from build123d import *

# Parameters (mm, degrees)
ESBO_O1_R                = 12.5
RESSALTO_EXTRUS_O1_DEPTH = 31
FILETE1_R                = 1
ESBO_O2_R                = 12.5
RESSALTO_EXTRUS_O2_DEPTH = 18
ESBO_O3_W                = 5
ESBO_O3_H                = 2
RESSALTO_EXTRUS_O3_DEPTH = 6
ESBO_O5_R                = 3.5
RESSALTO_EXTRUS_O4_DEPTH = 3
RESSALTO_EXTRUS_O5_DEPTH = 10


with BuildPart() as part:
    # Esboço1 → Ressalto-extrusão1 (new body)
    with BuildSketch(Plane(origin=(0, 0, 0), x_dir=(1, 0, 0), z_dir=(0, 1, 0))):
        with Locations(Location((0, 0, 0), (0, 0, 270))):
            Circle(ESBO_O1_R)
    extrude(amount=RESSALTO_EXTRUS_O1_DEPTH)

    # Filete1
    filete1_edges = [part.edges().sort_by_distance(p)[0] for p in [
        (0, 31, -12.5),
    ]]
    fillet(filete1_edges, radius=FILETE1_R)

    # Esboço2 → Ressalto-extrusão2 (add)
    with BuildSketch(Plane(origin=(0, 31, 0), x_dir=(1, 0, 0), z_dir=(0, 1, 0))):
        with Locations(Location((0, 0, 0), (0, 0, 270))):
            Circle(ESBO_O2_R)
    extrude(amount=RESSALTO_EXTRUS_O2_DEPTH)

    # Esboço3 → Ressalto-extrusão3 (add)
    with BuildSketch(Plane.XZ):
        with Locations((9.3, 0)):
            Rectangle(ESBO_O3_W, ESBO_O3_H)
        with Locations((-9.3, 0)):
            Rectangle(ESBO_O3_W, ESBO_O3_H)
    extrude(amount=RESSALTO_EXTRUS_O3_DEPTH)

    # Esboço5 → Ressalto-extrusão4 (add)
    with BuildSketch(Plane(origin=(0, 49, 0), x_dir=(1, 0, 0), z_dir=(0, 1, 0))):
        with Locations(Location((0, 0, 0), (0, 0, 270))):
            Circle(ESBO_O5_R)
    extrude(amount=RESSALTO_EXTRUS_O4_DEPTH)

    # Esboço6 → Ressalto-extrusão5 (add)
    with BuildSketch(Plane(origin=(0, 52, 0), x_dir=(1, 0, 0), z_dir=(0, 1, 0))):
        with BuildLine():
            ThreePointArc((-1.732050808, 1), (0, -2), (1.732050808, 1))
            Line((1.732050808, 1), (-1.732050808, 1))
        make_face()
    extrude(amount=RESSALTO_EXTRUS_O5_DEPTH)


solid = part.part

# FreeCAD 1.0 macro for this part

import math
import FreeCAD as App
import Part
import Sketcher
from FreeCAD import Vector


def edges_at(feature, points):
    """Names of the edges that pass closest to the given points."""
    edges = feature.Shape.Edges
    near = lambda p: min(range(len(edges)), key=lambda i: edges[i].distToShape(Part.Vertex(*p))[0])
    return sorted({f"Edge{near(p) + 1}" for p in points})

doc = App.newDocument("Part")
body = doc.addObject("PartDesign::Body", "Body")

# Sketch on XZ plane
sketch1 = body.newObject("Sketcher::SketchObject", "Sketch")
sketch1.AttachmentSupport = (doc.getObject("XZ_Plane"), [""])
sketch1.MapMode = "FlatFace"
sketch1.addGeometry(Part.Circle(Vector(0, 0, 0), Vector(0, 0, 1), 12.5), False)
sketch1.addConstraint(Sketcher.Constraint("Coincident", 0, 3, -1, 1))
sketch1.addConstraint(Sketcher.Constraint("Diameter", 0, 25.0))
pad1 = body.newObject("PartDesign::Pad", "Pad")
pad1.Profile = sketch1
pad1.Length = 31
pad1.Reversed = True
doc.recompute()

fillet = body.newObject("PartDesign::Fillet", "Fillet")
fillet.Base = (pad1, edges_at(pad1, [(0, 31, -12.5)]))
fillet.Radius = 1

# Sketch on XZ plane
sketch2 = body.newObject("Sketcher::SketchObject", "Sketch001")
sketch2.AttachmentSupport = (doc.getObject("XZ_Plane"), [""])
sketch2.MapMode = "FlatFace"
sketch2.AttachmentOffset = App.Placement(Vector(0, 0, -31), App.Rotation())
sketch2.addGeometry(Part.Circle(Vector(0, 0, 0), Vector(0, 0, 1), 12.5), False)
sketch2.addConstraint(Sketcher.Constraint("Coincident", 0, 3, -1, 1))
sketch2.addConstraint(Sketcher.Constraint("Diameter", 0, 25.0))
pad2 = body.newObject("PartDesign::Pad", "Pad001")
pad2.Profile = sketch2
pad2.Length = 18
pad2.Reversed = True

# Sketch on XZ plane
sketch3 = body.newObject("Sketcher::SketchObject", "Sketch002")
sketch3.AttachmentSupport = (doc.getObject("XZ_Plane"), [""])
sketch3.MapMode = "FlatFace"
sketch3.addGeometry(Part.LineSegment(Vector(6.8, 1, 0), Vector(6.8, -1, 0)), False)
sketch3.addGeometry(Part.LineSegment(Vector(6.8, -1, 0), Vector(11.8, -1, 0)), False)
sketch3.addGeometry(Part.LineSegment(Vector(11.8, -1, 0), Vector(11.8, 1, 0)), False)
sketch3.addGeometry(Part.LineSegment(Vector(11.8, 1, 0), Vector(6.8, 1, 0)), False)
sketch3.addGeometry(Part.LineSegment(Vector(-11.8, 1, 0), Vector(-11.8, -1, 0)), False)
sketch3.addGeometry(Part.LineSegment(Vector(-11.8, -1, 0), Vector(-6.8, -1, 0)), False)
sketch3.addGeometry(Part.LineSegment(Vector(-6.8, -1, 0), Vector(-6.8, 1, 0)), False)
sketch3.addGeometry(Part.LineSegment(Vector(-6.8, 1, 0), Vector(-11.8, 1, 0)), False)
sketch3.addConstraint(Sketcher.Constraint("Coincident", 0, 2, 1, 1))
sketch3.addConstraint(Sketcher.Constraint("Coincident", 1, 2, 2, 1))
sketch3.addConstraint(Sketcher.Constraint("Coincident", 2, 2, 3, 1))
sketch3.addConstraint(Sketcher.Constraint("Coincident", 3, 2, 0, 1))
sketch3.addConstraint(Sketcher.Constraint("Coincident", 4, 2, 5, 1))
sketch3.addConstraint(Sketcher.Constraint("Coincident", 5, 2, 6, 1))
sketch3.addConstraint(Sketcher.Constraint("Coincident", 6, 2, 7, 1))
sketch3.addConstraint(Sketcher.Constraint("Coincident", 7, 2, 4, 1))
sketch3.addConstraint(Sketcher.Constraint("Vertical", 0))
sketch3.addConstraint(Sketcher.Constraint("Horizontal", 1))
sketch3.addConstraint(Sketcher.Constraint("Vertical", 2))
sketch3.addConstraint(Sketcher.Constraint("Horizontal", 3))
sketch3.addConstraint(Sketcher.Constraint("Vertical", 4))
sketch3.addConstraint(Sketcher.Constraint("Horizontal", 5))
sketch3.addConstraint(Sketcher.Constraint("Vertical", 6))
sketch3.addConstraint(Sketcher.Constraint("Horizontal", 7))
sketch3.addConstraint(Sketcher.Constraint("Symmetric", 2, 2, 4, 2, -1, 1))
sketch3.addConstraint(Sketcher.Constraint("Symmetric", 0, 2, 6, 2, -1, 1))
sketch3.addConstraint(Sketcher.Constraint("Horizontal", 1, 2, 4, 2))
sketch3.addConstraint(Sketcher.Constraint("DistanceX", 1, 1, 1, 2, 5.0))
sketch3.addConstraint(Sketcher.Constraint("DistanceY", 0, 2, 0, 1, 2.0))
sketch3.addConstraint(Sketcher.Constraint("DistanceX", -1, 1, 0, 2, 6.8))
pad3 = body.newObject("PartDesign::Pad", "Pad002")
pad3.Profile = sketch3
pad3.Length = 6

# Sketch on XZ plane
sketch4 = body.newObject("Sketcher::SketchObject", "Sketch003")
sketch4.AttachmentSupport = (doc.getObject("XZ_Plane"), [""])
sketch4.MapMode = "FlatFace"
sketch4.AttachmentOffset = App.Placement(Vector(0, 0, -49), App.Rotation())
sketch4.addGeometry(Part.Circle(Vector(0, 0, 0), Vector(0, 0, 1), 3.5), False)
sketch4.addConstraint(Sketcher.Constraint("Coincident", 0, 3, -1, 1))
sketch4.addConstraint(Sketcher.Constraint("Diameter", 0, 7.0))
pad4 = body.newObject("PartDesign::Pad", "Pad003")
pad4.Profile = sketch4
pad4.Length = 3
pad4.Reversed = True

# Sketch on XZ plane
sketch5 = body.newObject("Sketcher::SketchObject", "Sketch004")
sketch5.AttachmentSupport = (doc.getObject("XZ_Plane"), [""])
sketch5.MapMode = "FlatFace"
sketch5.AttachmentOffset = App.Placement(Vector(0, 0, -52), App.Rotation())
sketch5.addGeometry(Part.ArcOfCircle(Part.Circle(Vector(0, 0, 0), Vector(0, 0, 1), 2), math.radians(-30), math.radians(210)), False)
sketch5.addGeometry(Part.LineSegment(Vector(1.732051, -1, 0), Vector(-1.732051, -1, 0)), False)
sketch5.addConstraint(Sketcher.Constraint("Coincident", 0, 1, 1, 1))
sketch5.addConstraint(Sketcher.Constraint("Coincident", 1, 2, 0, 2))
sketch5.addConstraint(Sketcher.Constraint("Horizontal", 1))
sketch5.addConstraint(Sketcher.Constraint("Coincident", 0, 3, -1, 1))
sketch5.addConstraint(Sketcher.Constraint("Radius", 0, 2.0))
sketch5.addConstraint(Sketcher.Constraint("DistanceY", 0, 1, -1, 1, 1.0))
pad5 = body.newObject("PartDesign::Pad", "Pad004")
pad5.Profile = sketch5
pad5.Length = 10
pad5.Reversed = True

doc.recompute()
